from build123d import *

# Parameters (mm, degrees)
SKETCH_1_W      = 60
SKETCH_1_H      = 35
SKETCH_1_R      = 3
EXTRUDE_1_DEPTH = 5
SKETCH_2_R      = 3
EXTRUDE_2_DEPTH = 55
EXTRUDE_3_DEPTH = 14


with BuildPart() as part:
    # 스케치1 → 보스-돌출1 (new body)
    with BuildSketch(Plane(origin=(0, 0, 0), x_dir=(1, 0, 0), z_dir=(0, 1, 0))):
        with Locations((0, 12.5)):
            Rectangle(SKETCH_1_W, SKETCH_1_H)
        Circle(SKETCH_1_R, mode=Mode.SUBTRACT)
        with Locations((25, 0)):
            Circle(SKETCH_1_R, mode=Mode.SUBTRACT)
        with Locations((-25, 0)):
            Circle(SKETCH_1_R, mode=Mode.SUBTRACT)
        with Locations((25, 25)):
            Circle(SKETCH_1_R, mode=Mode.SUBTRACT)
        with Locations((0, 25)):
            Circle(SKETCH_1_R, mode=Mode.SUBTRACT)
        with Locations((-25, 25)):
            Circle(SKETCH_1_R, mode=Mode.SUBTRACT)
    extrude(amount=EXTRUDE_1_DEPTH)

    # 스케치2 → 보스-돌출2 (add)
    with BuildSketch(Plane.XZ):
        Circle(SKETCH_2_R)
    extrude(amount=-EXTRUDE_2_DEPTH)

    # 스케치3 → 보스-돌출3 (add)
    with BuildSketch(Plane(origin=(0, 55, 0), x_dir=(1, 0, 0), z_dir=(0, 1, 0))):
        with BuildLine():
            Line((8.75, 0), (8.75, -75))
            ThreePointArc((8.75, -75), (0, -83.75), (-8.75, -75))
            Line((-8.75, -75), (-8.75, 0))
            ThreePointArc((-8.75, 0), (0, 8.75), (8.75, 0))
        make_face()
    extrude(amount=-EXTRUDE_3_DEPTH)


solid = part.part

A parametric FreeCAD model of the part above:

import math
import FreeCAD as App
import Part
import Sketcher

V = App.Vector
Q = App.Units.Quantity

doc = App.newDocument("Part")
body = doc.addObject("PartDesign::Body", "Body")

# Sketch on XZ plane
sketch1 = body.newObject("Sketcher::SketchObject", "Sketch")
sketch1.AttachmentSupport = (doc.getObject("XZ_Plane"), [""])
sketch1.MapMode = "FlatFace"
sketch1.addGeometry(Part.LineSegment(V(-30, -30, 0), V(-30, 5, 0)), False)
sketch1.addGeometry(Part.LineSegment(V(-30, 5, 0), V(30, 5, 0)), False)
sketch1.addGeometry(Part.LineSegment(V(30, 5, 0), V(30, -30, 0)), False)
sketch1.addGeometry(Part.LineSegment(V(30, -30, 0), V(-30, -30, 0)), False)
sketch1.addGeometry(Part.Circle(V(-25, 0, 0), V(0, 0, 1), 3), False)
sketch1.addGeometry(Part.Circle(V(0, 0, 0), V(0, 0, 1), 3), False)
sketch1.addGeometry(Part.Circle(V(25, 0, 0), V(0, 0, 1), 3), False)
sketch1.addGeometry(Part.Circle(V(-25, -25, 0), V(0, 0, 1), 3), False)
sketch1.addGeometry(Part.Circle(V(0, -25, 0), V(0, 0, 1), 3), False)
sketch1.addGeometry(Part.Circle(V(25, -25, 0), V(0, 0, 1), 3), False)
sketch1.addConstraint(Sketcher.Constraint("Coincident", 0, 2, 1, 1))
sketch1.addConstraint(Sketcher.Constraint("Coincident", 1, 2, 2, 1))
sketch1.addConstraint(Sketcher.Constraint("Coincident", 2, 2, 3, 1))
sketch1.addConstraint(Sketcher.Constraint("Coincident", 3, 2, 0, 1))
sketch1.addConstraint(Sketcher.Constraint("Vertical", 0))
sketch1.addConstraint(Sketcher.Constraint("Horizontal", 1))
sketch1.addConstraint(Sketcher.Constraint("Vertical", 2))
sketch1.addConstraint(Sketcher.Constraint("Horizontal", 3))
sketch1.addConstraint(Sketcher.Constraint("Coincident", 5, 3, -1, 1))
sketch1.addConstraint(Sketcher.Constraint("Equal", 4, 5))
sketch1.addConstraint(Sketcher.Constraint("Equal", 5, 6))
sketch1.addConstraint(Sketcher.Constraint("Equal", 6, 7))
sketch1.addConstraint(Sketcher.Constraint("Equal", 7, 8))
sketch1.addConstraint(Sketcher.Constraint("Equal", 8, 9))
sketch1.addConstraint(Sketcher.Constraint("Symmetric", 4, 3, 6, 3, -1, 1))
sketch1.addConstraint(Sketcher.Constraint("Symmetric", 7, 3, 9, 3, -2))
sketch1.addConstraint(Sketcher.Constraint("PointOnObject", 4, 3, -1))
sketch1.addConstraint(Sketcher.Constraint("PointOnObject", 8, 3, -2))
sketch1.addConstraint(Sketcher.Constraint("Horizontal", 7, 3, 8, 3))
sketch1.addConstraint(Sketcher.Constraint("Vertical", 4, 3, 7, 3))
sketch1.addConstraint(Sketcher.Constraint("Diameter", 4, Q("6 mm")))
sketch1.addConstraint(Sketcher.Constraint("DistanceX", 1, 1, 1, 2, Q("60 mm")))
sketch1.addConstraint(Sketcher.Constraint("DistanceY", 0, 1, 0, 2, Q("35 mm")))
sketch1.addConstraint(Sketcher.Constraint("DistanceX", 4, 3, -1, 1, Q("25 mm")))
sketch1.addConstraint(Sketcher.Constraint("DistanceY", 7, 3, -1, 1, Q("25 mm")))
sketch1.addConstraint(Sketcher.Constraint("DistanceX", 0, 2, -1, 1, Q("30 mm")))
sketch1.addConstraint(Sketcher.Constraint("DistanceY", -1, 1, 0, 2, Q("5 mm")))
pad1 = body.newObject("PartDesign::Pad", "Pad")
pad1.Profile = sketch1
pad1.Length = 5
pad1.Reversed = True

# Sketch on XZ plane
sketch2 = body.newObject("Sketcher::SketchObject", "Sketch001")
sketch2.AttachmentSupport = (doc.getObject("XZ_Plane"), [""])
sketch2.MapMode = "FlatFace"
sketch2.addGeometry(Part.Circle(V(0, 0, 0), V(0, 0, 1), 3), False)
sketch2.addConstraint(Sketcher.Constraint("Coincident", 0, 3, -1, 1))
sketch2.addConstraint(Sketcher.Constraint("Diameter", 0, Q("6 mm")))
pad2 = body.newObject("PartDesign::Pad", "Pad001")
pad2.Profile = sketch2
pad2.Length = 55
pad2.Reversed = True

# Sketch on XZ plane
sketch3 = body.newObject("Sketcher::SketchObject", "Sketch002")
sketch3.AttachmentSupport = (doc.getObject("XZ_Plane"), [""])
sketch3.MapMode = "FlatFace"
sketch3.AttachmentOffset = App.Placement(V(0, 0, -55), App.Rotation())
sketch3.addGeometry(Part.LineSegment(V(9, 75, 0), V(9, 0, 0)), False)
sketch3.addGeometry(Part.ArcOfCircle(Part.Circle(V(0, 0, 0), V(0, 0, 1), 9), math.radians(180), math.radians(360)), False)
sketch3.addGeometry(Part.LineSegment(V(-9, 0, 0), V(-9, 75, 0)), False)
sketch3.addGeometry(Part.ArcOfCircle(Part.Circle(V(0, 75, 0), V(0, 0, 1), 9), math.radians(0), math.radians(180)), False)
sketch3.addConstraint(Sketcher.Constraint("Tangent", 0, 2, 1, 2))
sketch3.addConstraint(Sketcher.Constraint("Tangent", 1, 1, 2, 1))
sketch3.addConstraint(Sketcher.Constraint("Tangent", 2, 2, 3, 2))
sketch3.addConstraint(Sketcher.Constraint("Tangent", 3, 1, 0, 1))
sketch3.addConstraint(Sketcher.Constraint("Vertical", 0))
sketch3.addConstraint(Sketcher.Constraint("Vertical", 2))
sketch3.addConstraint(Sketcher.Constraint("Coincident", 1, 3, -1, 1))
sketch3.addConstraint(Sketcher.Constraint("DistanceY", 0, 2, 0, 1, Q("75 mm")))
sketch3.addConstraint(Sketcher.Constraint("Radius", 1, Q("8.75 mm")))
pad3 = body.newObject("PartDesign::Pad", "Pad002")
pad3.Profile = sketch3
pad3.Length = 14

doc.recompute()
